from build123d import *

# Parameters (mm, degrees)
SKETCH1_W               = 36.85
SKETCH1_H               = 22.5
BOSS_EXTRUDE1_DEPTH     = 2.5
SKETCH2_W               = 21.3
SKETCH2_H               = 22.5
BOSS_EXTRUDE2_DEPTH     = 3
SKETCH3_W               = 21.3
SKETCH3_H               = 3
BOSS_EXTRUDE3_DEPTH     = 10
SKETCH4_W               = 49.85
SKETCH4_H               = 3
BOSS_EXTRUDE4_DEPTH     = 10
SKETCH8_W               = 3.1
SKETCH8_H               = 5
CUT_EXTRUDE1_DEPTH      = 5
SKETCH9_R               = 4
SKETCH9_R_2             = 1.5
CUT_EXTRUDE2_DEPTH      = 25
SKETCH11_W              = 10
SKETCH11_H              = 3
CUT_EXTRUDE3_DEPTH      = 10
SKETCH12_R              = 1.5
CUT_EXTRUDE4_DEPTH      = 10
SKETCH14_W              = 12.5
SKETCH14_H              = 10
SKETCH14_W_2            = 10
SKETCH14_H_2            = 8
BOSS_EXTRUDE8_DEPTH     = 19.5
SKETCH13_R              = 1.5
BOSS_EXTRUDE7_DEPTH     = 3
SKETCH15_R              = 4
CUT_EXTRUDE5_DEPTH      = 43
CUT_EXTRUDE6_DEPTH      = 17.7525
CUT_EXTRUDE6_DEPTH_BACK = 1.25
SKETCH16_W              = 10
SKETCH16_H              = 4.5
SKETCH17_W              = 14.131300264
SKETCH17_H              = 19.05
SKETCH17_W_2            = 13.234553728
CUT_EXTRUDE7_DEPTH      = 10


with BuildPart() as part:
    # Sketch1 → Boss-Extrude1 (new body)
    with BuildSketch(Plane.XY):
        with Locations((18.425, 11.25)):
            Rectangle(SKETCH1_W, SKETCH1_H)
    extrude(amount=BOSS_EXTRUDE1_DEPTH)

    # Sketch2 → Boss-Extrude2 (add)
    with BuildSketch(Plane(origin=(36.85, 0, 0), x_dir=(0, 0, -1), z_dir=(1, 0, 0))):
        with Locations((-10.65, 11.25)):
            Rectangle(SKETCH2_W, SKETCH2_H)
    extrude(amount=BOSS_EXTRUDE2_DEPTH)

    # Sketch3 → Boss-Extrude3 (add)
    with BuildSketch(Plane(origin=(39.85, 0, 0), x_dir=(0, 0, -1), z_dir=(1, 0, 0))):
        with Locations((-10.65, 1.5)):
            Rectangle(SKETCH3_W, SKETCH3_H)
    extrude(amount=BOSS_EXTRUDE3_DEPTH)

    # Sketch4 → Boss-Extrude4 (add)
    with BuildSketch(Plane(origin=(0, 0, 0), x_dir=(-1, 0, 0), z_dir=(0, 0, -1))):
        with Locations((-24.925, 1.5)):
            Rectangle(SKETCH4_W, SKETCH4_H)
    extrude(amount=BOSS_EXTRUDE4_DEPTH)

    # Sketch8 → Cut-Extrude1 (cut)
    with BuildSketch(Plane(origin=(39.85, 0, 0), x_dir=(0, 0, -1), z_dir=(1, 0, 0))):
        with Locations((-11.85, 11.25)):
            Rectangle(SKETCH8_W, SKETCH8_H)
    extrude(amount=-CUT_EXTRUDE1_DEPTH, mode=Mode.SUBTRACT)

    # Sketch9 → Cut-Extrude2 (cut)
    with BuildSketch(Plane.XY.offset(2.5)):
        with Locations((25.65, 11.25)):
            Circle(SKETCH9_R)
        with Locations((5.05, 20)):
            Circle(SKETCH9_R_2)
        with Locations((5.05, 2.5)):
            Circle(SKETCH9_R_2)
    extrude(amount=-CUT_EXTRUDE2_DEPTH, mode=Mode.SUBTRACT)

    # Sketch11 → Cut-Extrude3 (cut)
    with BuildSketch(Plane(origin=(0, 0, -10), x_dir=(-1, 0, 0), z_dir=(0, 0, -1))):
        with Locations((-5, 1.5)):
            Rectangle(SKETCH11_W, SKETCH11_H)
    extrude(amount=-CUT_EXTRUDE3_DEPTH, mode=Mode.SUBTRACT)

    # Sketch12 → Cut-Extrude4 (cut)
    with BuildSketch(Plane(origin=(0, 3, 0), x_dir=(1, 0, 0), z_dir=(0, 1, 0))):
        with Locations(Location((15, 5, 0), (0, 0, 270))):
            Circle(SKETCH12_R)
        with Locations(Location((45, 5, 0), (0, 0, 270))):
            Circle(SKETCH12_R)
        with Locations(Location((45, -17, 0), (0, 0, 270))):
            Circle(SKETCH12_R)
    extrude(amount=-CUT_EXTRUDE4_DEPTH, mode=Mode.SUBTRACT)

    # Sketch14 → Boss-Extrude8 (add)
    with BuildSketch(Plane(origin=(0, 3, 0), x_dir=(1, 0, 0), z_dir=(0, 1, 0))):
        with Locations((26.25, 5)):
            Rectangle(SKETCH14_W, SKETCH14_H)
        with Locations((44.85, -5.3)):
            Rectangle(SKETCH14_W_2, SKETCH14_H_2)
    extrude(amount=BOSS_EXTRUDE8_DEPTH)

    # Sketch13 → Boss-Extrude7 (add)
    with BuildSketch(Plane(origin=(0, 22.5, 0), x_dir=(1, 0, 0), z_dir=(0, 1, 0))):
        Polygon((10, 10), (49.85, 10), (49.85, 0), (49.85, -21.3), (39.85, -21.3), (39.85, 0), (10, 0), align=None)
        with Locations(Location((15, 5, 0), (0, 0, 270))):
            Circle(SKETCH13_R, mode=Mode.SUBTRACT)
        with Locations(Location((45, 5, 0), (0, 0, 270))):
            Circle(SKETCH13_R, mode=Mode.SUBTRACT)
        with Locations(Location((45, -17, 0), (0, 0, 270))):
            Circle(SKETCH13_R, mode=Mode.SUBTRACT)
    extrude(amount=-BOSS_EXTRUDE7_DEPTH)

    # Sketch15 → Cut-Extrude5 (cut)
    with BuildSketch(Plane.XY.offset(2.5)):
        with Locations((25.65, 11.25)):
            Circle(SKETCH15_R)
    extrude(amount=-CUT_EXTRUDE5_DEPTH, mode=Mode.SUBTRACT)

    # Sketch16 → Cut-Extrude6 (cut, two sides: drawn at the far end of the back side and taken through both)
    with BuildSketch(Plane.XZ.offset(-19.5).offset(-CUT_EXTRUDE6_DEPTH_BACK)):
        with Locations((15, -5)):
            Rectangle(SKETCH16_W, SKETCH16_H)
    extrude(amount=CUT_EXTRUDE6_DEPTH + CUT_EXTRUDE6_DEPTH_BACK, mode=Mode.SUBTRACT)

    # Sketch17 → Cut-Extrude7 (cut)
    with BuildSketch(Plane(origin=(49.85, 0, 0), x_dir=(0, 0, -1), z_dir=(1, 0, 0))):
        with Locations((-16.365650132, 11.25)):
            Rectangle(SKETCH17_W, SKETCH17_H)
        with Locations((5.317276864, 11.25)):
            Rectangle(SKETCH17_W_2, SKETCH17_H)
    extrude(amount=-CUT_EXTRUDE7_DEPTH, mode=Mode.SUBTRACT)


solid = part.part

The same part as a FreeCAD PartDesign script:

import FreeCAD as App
import Part
import Sketcher

V = App.Vector


def add_polygon(sketch, points):
    """Adds a closed chain of lines whose ends are joined by coincident constraints."""
    first, n = sketch.GeometryCount, len(points)
    for a, b in zip(points, points[1:] + points[:1]):
        sketch.addGeometry(Part.LineSegment(App.Vector(*a, 0), App.Vector(*b, 0)), False)
    for i in range(n):
        sketch.addConstraint(Sketcher.Constraint("Coincident", first + i, 2, first + (i + 1) % n, 1))

doc = App.newDocument("Part")
params = doc.addObject("Spreadsheet::Sheet", "Params")
for row, (alias, value) in enumerate([
    ("sketch1_height", "22.5 mm"),
    ("sketch1_width", "36.85 mm"),
    ("pad1_length", "2.5 mm"),
    ("sketch2_width", "22.5 mm"),
    ("sketch2_height", "21.3 mm"),
    ("pad2_length", "3 mm"),
    ("sketch3_width", "3 mm"),
    ("sketch3_height", "21.3 mm"),
    ("pad3_length", "10 mm"),
    ("sketch4_height", "3 mm"),
    ("sketch4_width", "49.85 mm"),
    ("pad4_length", "10 mm"),
    ("sketch5_width", "5 mm"),
    ("sketch5_height", "3.1 mm"),
    ("pocket1_length", "5 mm"),
    ("sketch6_diameter", "8 mm"),
    ("sketch6_diameter2", "3 mm"),
    ("pocket2_length", "25 mm"),
    ("sketch7_width", "10 mm"),
    ("sketch7_height", "3 mm"),
    ("pocket3_length", "10 mm"),
    ("sketch8_diameter", "3 mm"),
    ("pocket4_length", "10 mm"),
    ("sketch9_width", "10 mm"),
    ("sketch9_height", "8 mm"),
    ("sketch9_width2", "12.5 mm"),
    ("pad5_length", "19.5 mm"),
    ("sketch10_diameter", "3 mm"),
    ("sketch10_width", "10 mm"),
    ("sketch10_height", "21.3 mm"),
    ("sketch10_width2", "39.85 mm"),
    ("pad6_length", "3 mm"),
    ("sketch11_diameter", "8 mm"),
    ("pocket5_length", "43 mm"),
    ("sketch12_width", "10 mm"),
    ("sketch12_height", "4.5 mm"),
    ("pocket6_length", "17.7525 mm"),
    ("pocket6_length2", "1.25 mm"),
    ("sketch13_width", "19.05 mm"),
    ("pocket7_length", "10 mm"),
], start=1):
    params.set(f"A{row}", alias)
    params.set(f"B{row}", "=" + value)
    params.setAlias(f"B{row}", alias)

body = doc.addObject("PartDesign::Body", "Body")

# Sketch on XY plane
sketch1 = body.newObject("Sketcher::SketchObject", "Sketch")
sketch1.AttachmentSupport = (doc.getObject("XY_Plane"), [""])
sketch1.MapMode = "FlatFace"
add_polygon(sketch1, [(0, 22.5), (0, 0), (36.85, 0), (36.85, 22.5)])  # lines 0-3
sketch1.addConstraint([
    Sketcher.Constraint("Vertical", 0),
    Sketcher.Constraint("Horizontal", 1),
    Sketcher.Constraint("Vertical", 2),
    Sketcher.Constraint("Horizontal", 3),
    Sketcher.Constraint("Coincident", 0, 2, -1, 1),
    Sketcher.Constraint("DistanceY", 0, 2, 0, 1, 22.5),
    Sketcher.Constraint("DistanceX", 1, 1, 1, 2, 36.85),
])
sketch1.setExpression("Constraints[9]", "Params.sketch1_height")
sketch1.setExpression("Constraints[10]", "Params.sketch1_width")
pad1 = body.newObject("PartDesign::Pad", "Pad")
pad1.Profile = sketch1
pad1.setExpression("Length", "Params.pad1_length")

# Sketch on YZ plane
sketch2 = body.newObject("Sketcher::SketchObject", "Sketch001")
sketch2.AttachmentSupport = (doc.getObject("YZ_Plane"), [""])
sketch2.MapMode = "FlatFace"
sketch2.AttachmentOffset = App.Placement(V(0, 0, 36.85), App.Rotation())
add_polygon(sketch2, [(22.5, 21.3), (0, 21.3), (0, 0), (22.5, 0)])  # lines 0-3
sketch2.addConstraint([
    Sketcher.Constraint("Horizontal", 0),
    Sketcher.Constraint("Vertical", 1),
    Sketcher.Constraint("Horizontal", 2),
    Sketcher.Constraint("Vertical", 3),
    Sketcher.Constraint("Coincident", 1, 2, -1, 1),
    Sketcher.Constraint("DistanceX", 0, 2, 0, 1, 22.5),
    Sketcher.Constraint("DistanceY", 1, 2, 1, 1, 21.3),
])
sketch2.setExpression("Constraints[9]", "Params.sketch2_width")
sketch2.setExpression("Constraints[10]", "Params.sketch2_height")
pad2 = body.newObject("PartDesign::Pad", "Pad001")
pad2.Profile = sketch2
pad2.setExpression("Length", "Params.pad2_length")

# Sketch on YZ plane
sketch3 = body.newObject("Sketcher::SketchObject", "Sketch002")
sketch3.AttachmentSupport = (doc.getObject("YZ_Plane"), [""])
sketch3.MapMode = "FlatFace"
sketch3.AttachmentOffset = App.Placement(V(0, 0, 39.85), App.Rotation())
add_polygon(sketch3, [(3, 21.3), (0, 21.3), (0, 0), (3, 0)])  # lines 0-3
sketch3.addConstraint([
    Sketcher.Constraint("Horizontal", 0),
    Sketcher.Constraint("Vertical", 1),
    Sketcher.Constraint("Horizontal", 2),
    Sketcher.Constraint("Vertical", 3),
    Sketcher.Constraint("Coincident", 1, 2, -1, 1),
    Sketcher.Constraint("DistanceX", 0, 2, 0, 1, 3.0),
    Sketcher.Constraint("DistanceY", 1, 2, 1, 1, 21.3),
])
sketch3.setExpression("Constraints[9]", "Params.sketch3_width")
sketch3.setExpression("Constraints[10]", "Params.sketch3_height")
pad3 = body.newObject("PartDesign::Pad", "Pad002")
pad3.Profile = sketch3
pad3.setExpression("Length", "Params.pad3_length")

# Sketch on XY plane
sketch4 = body.newObject("Sketcher::SketchObject", "Sketch003")
sketch4.AttachmentSupport = (doc.getObject("XY_Plane"), [""])
sketch4.MapMode = "FlatFace"
add_polygon(sketch4, [(49.85, 3), (49.85, 0), (0, 0), (0, 3)])  # lines 0-3
sketch4.addConstraint([
    Sketcher.Constraint("Vertical", 0),
    Sketcher.Constraint("Horizontal", 1),
    Sketcher.Constraint("Vertical", 2),
    Sketcher.Constraint("Horizontal", 3),
    Sketcher.Constraint("Coincident", 1, 2, -1, 1),
    Sketcher.Constraint("DistanceY", 0, 2, 0, 1, 3.0),
    Sketcher.Constraint("DistanceX", 1, 2, 1, 1, 49.85),
])
sketch4.setExpression("Constraints[9]", "Params.sketch4_height")
sketch4.setExpression("Constraints[10]", "Params.sketch4_width")
pad4 = body.newObject("PartDesign::Pad", "Pad003")
pad4.Profile = sketch4
pad4.setExpression("Length", "Params.pad4_length")
pad4.Reversed = True

# Sketch on YZ plane
sketch5 = body.newObject("Sketcher::SketchObject", "Sketch004")
sketch5.AttachmentSupport = (doc.getObject("YZ_Plane"), [""])
sketch5.MapMode = "FlatFace"
sketch5.AttachmentOffset = App.Placement(V(0, 0, 39.85), App.Rotation())
add_polygon(sketch5, [(13.75, 13.4), (8.75, 13.4), (8.75, 10.3), (13.75, 10.3)])  # lines 0-3
sketch5.addConstraint([
    Sketcher.Constraint("Horizontal", 0),
    Sketcher.Constraint("Vertical", 1),
    Sketcher.Constraint("Horizontal", 2),
    Sketcher.Constraint("Vertical", 3),
    Sketcher.Constraint("DistanceX", 0, 2, 0, 1, 5.0),
    Sketcher.Constraint("DistanceY", 1, 2, 1, 1, 3.1),
    Sketcher.Constraint("DistanceY", -1, 1, 0, 2, 13.4),
    Sketcher.Constraint("DistanceX", -1, 1, 0, 2, 8.75),
])
sketch5.setExpression("Constraints[8]", "Params.sketch5_width")
sketch5.setExpression("Constraints[9]", "Params.sketch5_height")
pocket1 = body.newObject("PartDesign::Pocket", "Pocket")
pocket1.Profile = sketch5
pocket1.setExpression("Length", "Params.pocket1_length")

# Sketch on XY plane
sketch6 = body.newObject("Sketcher::SketchObject", "Sketch005")
sketch6.AttachmentSupport = (doc.getObject("XY_Plane"), [""])
sketch6.MapMode = "FlatFace"
sketch6.AttachmentOffset = App.Placement(V(0, 0, 2.5), App.Rotation())
sketch6.addGeometry([
    Part.Circle(V(25.65, 11.25, 0), V(0, 0, 1), 4),
    Part.Circle(V(5.05, 20, 0), V(0, 0, 1), 1.5),
    Part.Circle(V(5.05, 2.5, 0), V(0, 0, 1), 1.5),
], False)
sketch6.addConstraint([
    Sketcher.Constraint("Equal", 1, 2),
    Sketcher.Constraint("Vertical", 1, 3, 2, 3),
    Sketcher.Constraint("Diameter", 0, 8.0),
    Sketcher.Constraint("Diameter", 1, 3.0),
    Sketcher.Constraint("DistanceY", -1, 1, 1, 3, 20.0),
    Sketcher.Constraint("DistanceY", -1, 1, 2, 3, 2.5),
    Sketcher.Constraint("DistanceX", 1, 3, 0, 3, 20.6),
    Sketcher.Constraint("DistanceX", -1, 1, 0, 3, 25.65),
    Sketcher.Constraint("DistanceY", -1, 1, 0, 3, 11.25),
])
sketch6.setExpression("Constraints[2]", "Params.sketch6_diameter")
sketch6.setExpression("Constraints[3]", "Params.sketch6_diameter2")
pocket2 = body.newObject("PartDesign::Pocket", "Pocket001")
pocket2.Profile = sketch6
pocket2.setExpression("Length", "Params.pocket2_length")

# Sketch on XY plane
sketch7 = body.newObject("Sketcher::SketchObject", "Sketch006")
sketch7.AttachmentSupport = (doc.getObject("XY_Plane"), [""])
sketch7.MapMode = "FlatFace"
sketch7.AttachmentOffset = App.Placement(V(0, 0, -10), App.Rotation())
add_polygon(sketch7, [(10, 3), (10, 0), (0, 0), (0, 3)])  # lines 0-3
sketch7.addConstraint([
    Sketcher.Constraint("Vertical", 0),
    Sketcher.Constraint("Horizontal", 1),
    Sketcher.Constraint("Vertical", 2),
    Sketcher.Constraint("Horizontal", 3),
    Sketcher.Constraint("Coincident", 1, 2, -1, 1),
    Sketcher.Constraint("DistanceX", 1, 2, 1, 1, 10.0),
    Sketcher.Constraint("DistanceY", 0, 2, 0, 1, 3.0),
])
sketch7.setExpression("Constraints[9]", "Params.sketch7_width")
sketch7.setExpression("Constraints[10]", "Params.sketch7_height")
pocket3 = body.newObject("PartDesign::Pocket", "Pocket002")
pocket3.Profile = sketch7
pocket3.setExpression("Length", "Params.pocket3_length")
pocket3.Reversed = True

# Sketch on XZ plane
sketch8 = body.newObject("Sketcher::SketchObject", "Sketch007")
sketch8.AttachmentSupport = (doc.getObject("XZ_Plane"), [""])
sketch8.MapMode = "FlatFace"
sketch8.AttachmentOffset = App.Placement(V(0, 0, -3), App.Rotation())
sketch8.addGeometry([
    Part.Circle(V(15, -5, 0), V(0, 0, 1), 1.5),
    Part.Circle(V(45, -5, 0), V(0, 0, 1), 1.5),
    Part.Circle(V(45, 17, 0), V(0, 0, 1), 1.5),
], False)
sketch8.addConstraint([
    Sketcher.Constraint("Equal", 0, 1),
    Sketcher.Constraint("Equal", 1, 2),
    Sketcher.Constraint("Horizontal", 0, 3, 1, 3),
    Sketcher.Constraint("Vertical", 1, 3, 2, 3),
    Sketcher.Constraint("Diameter", 0, 3.0),
    Sketcher.Constraint("DistanceX", -1, 1, 0, 3, 15.0),
    Sketcher.Constraint("DistanceY", 0, 3, -1, 1, 5.0),
    Sketcher.Constraint("DistanceX", -1, 1, 1, 3, 45.0),
    Sketcher.Constraint("DistanceY", -1, 1, 2, 3, 17.0),
])
sketch8.setExpression("Constraints[4]", "Params.sketch8_diameter")
pocket4 = body.newObject("PartDesign::Pocket", "Pocket003")
pocket4.Profile = sketch8
pocket4.setExpression("Length", "Params.pocket4_length")
pocket4.Reversed = True

# Sketch on XZ plane
sketch9 = body.newObject("Sketcher::SketchObject", "Sketch008")
sketch9.AttachmentSupport = (doc.getObject("XZ_Plane"), [""])
sketch9.MapMode = "FlatFace"
sketch9.AttachmentOffset = App.Placement(V(0, 0, -3), App.Rotation())
add_polygon(sketch9, [(20, -10), (20, 0), (32.5, 0), (32.5, -10)])  # lines 0-3
add_polygon(sketch9, [(39.85, 1.3), (39.85, 9.3), (49.85, 9.3), (49.85, 1.3)])  # lines 4-7
sketch9.addConstraint([
    Sketcher.Constraint("Vertical", 0),
    Sketcher.Constraint("Horizontal", 1),
    Sketcher.Constraint("Vertical", 2),
    Sketcher.Constraint("Horizontal", 3),
    Sketcher.Constraint("Vertical", 4),
    Sketcher.Constraint("Horizontal", 5),
    Sketcher.Constraint("Vertical", 6),
    Sketcher.Constraint("Horizontal", 7),
    Sketcher.Constraint("PointOnObject", 0, 2, -1),
    Sketcher.Constraint("Equal", 7, 0),
    Sketcher.Constraint("DistanceX", 5, 1, 5, 2, 10.0),
    Sketcher.Constraint("DistanceY", 4, 1, 4, 2, 8.0),
    Sketcher.Constraint("DistanceX", 1, 1, 1, 2, 12.5),
    Sketcher.Constraint("DistanceX", -1, 1, 0, 2, 20.0),
    Sketcher.Constraint("DistanceY", -1, 1, 4, 2, 9.3),
    Sketcher.Constraint("DistanceX", -1, 1, 4, 2, 39.85),
])
sketch9.setExpression("Constraints[18]", "Params.sketch9_width")
sketch9.setExpression("Constraints[19]", "Params.sketch9_height")
sketch9.setExpression("Constraints[20]", "Params.sketch9_width2")
pad5 = body.newObject("PartDesign::Pad", "Pad004")
pad5.Profile = sketch9
pad5.setExpression("Length", "Params.pad5_length")
pad5.Reversed = True

# Sketch on XZ plane
sketch10 = body.newObject("Sketcher::SketchObject", "Sketch009")
sketch10.AttachmentSupport = (doc.getObject("XZ_Plane"), [""])
sketch10.MapMode = "FlatFace"
sketch10.AttachmentOffset = App.Placement(V(0, 0, -22.5), App.Rotation())
add_polygon(sketch10, [(49.85, -10), (10, -10), (10, 0), (39.85, 0), (39.85, 21.3), (49.85, 21.3)])  # lines 0-5
sketch10.addGeometry(Part.Circle(V(45, 17, 0), V(0, 0, 1), 1.5), False)  # 6
sketch10.addGeometry(Part.Circle(V(45, -5, 0), V(0, 0, 1), 1.5), False)  # 7
sketch10.addGeometry(Part.Circle(V(15, -5, 0), V(0, 0, 1), 1.5), False)  # 8
sketch10.addConstraint([
    Sketcher.Constraint("Horizontal", 0),
    Sketcher.Constraint("Vertical", 1),
    Sketcher.Constraint("Horizontal", 2),
    Sketcher.Constraint("Vertical", 3),
    Sketcher.Constraint("Horizontal", 4),
    Sketcher.Constraint("Vertical", 5),
    Sketcher.Constraint("Equal", 6, 7),
    Sketcher.Constraint("Equal", 7, 8),
    Sketcher.Constraint("PointOnObject", 1, 2, -1),
    Sketcher.Constraint("Horizontal", 7, 3, 8, 3),
    Sketcher.Constraint("Vertical", 6, 3, 7, 3),
    Sketcher.Constraint("Equal", 4, 1),
    Sketcher.Constraint("Diameter", 6, 3.0),
    Sketcher.Constraint("DistanceX", 4, 1, 4, 2, 10.0),
    Sketcher.Constraint("DistanceY", 3, 1, 3, 2, 21.3),
    Sketcher.Constraint("DistanceX", -1, 1, 6, 3, 45.0),
    Sketcher.Constraint("DistanceY", -1, 1, 6, 3, 17.0),
    Sketcher.Constraint("DistanceY", 7, 3, -1, 1, 5.0),
    Sketcher.Constraint("DistanceX", -1, 1, 8, 3, 15.0),
    Sketcher.Constraint("DistanceX", -1, 1, 0, 2, 10.0),
    Sketcher.Constraint("DistanceX", 0, 2, 0, 1, 39.85),
])
sketch10.setExpression("Constraints[18]", "Params.sketch10_diameter")
sketch10.setExpression("Constraints[19]", "Params.sketch10_width")
sketch10.setExpression("Constraints[20]", "Params.sketch10_height")
sketch10.setExpression("Constraints[26]", "Params.sketch10_width2")
pad6 = body.newObject("PartDesign::Pad", "Pad005")
pad6.Profile = sketch10
pad6.setExpression("Length", "Params.pad6_length")

# Sketch on XY plane
sketch11 = body.newObject("Sketcher::SketchObject", "Sketch010")
sketch11.AttachmentSupport = (doc.getObject("XY_Plane"), [""])
sketch11.MapMode = "FlatFace"
sketch11.AttachmentOffset = App.Placement(V(0, 0, 2.5), App.Rotation())
sketch11.addGeometry(Part.Circle(V(25.65, 11.25, 0), V(0, 0, 1), 4), False)
sketch11.addConstraint([
    Sketcher.Constraint("Diameter", 0, 8.0),
    Sketcher.Constraint("DistanceX", -1, 1, 0, 3, 25.65),
    Sketcher.Constraint("DistanceY", -1, 1, 0, 3, 11.25),
])
sketch11.setExpression("Constraints[0]", "Params.sketch11_diameter")
pocket5 = body.newObject("PartDesign::Pocket", "Pocket004")
pocket5.Profile = sketch11
pocket5.setExpression("Length", "Params.pocket5_length")

# Sketch on XZ plane
sketch12 = body.newObject("Sketcher::SketchObject", "Sketch011")
sketch12.AttachmentSupport = (doc.getObject("XZ_Plane"), [""])
sketch12.MapMode = "FlatFace"
sketch12.AttachmentOffset = App.Placement(V(0, 0, -19.5), App.Rotation())
add_polygon(sketch12, [(10, -2.75), (10, -7.25), (20, -7.25), (20, -2.75)])  # lines 0-3
sketch12.addConstraint([
    Sketcher.Constraint("Vertical", 0),
    Sketcher.Constraint("Horizontal", 1),
    Sketcher.Constraint("Vertical", 2),
    Sketcher.Constraint("Horizontal", 3),
    Sketcher.Constraint("DistanceX", 1, 1, 1, 2, 10.0),
    Sketcher.Constraint("DistanceY", 0, 2, 0, 1, 4.5),
    Sketcher.Constraint("DistanceX", -1, 1, 0, 2, 10.0),
    Sketcher.Constraint("DistanceY", 0, 2, -1, 1, 7.25),
])
sketch12.setExpression("Constraints[8]", "Params.sketch12_width")
sketch12.setExpression("Constraints[9]", "Params.sketch12_height")
pocket6 = body.newObject("PartDesign::Pocket", "Pocket005")
pocket6.Profile = sketch12
pocket6.Type = "TwoLengths"
pocket6.setExpression("Length", "Params.pocket6_length")
pocket6.setExpression("Length2", "Params.pocket6_length2")
pocket6.Reversed = True

# Sketch on YZ plane
sketch13 = body.newObject("Sketcher::SketchObject", "Sketch012")
sketch13.AttachmentSupport = (doc.getObject("YZ_Plane"), [""])
sketch13.MapMode = "FlatFace"
sketch13.AttachmentOffset = App.Placement(V(0, 0, 49.85), App.Rotation())
add_polygon(sketch13, [(20.775, 23.4313), (1.725, 23.4313), (1.725, 9.3), (20.775, 9.3)])  # lines 0-3
add_polygon(sketch13, [(20.775, 1.3), (1.725, 1.3), (1.725, -11.934554), (20.775, -11.934554)])  # lines 4-7
sketch13.addConstraint([
    Sketcher.Constraint("Horizontal", 0),
    Sketcher.Constraint("Vertical", 1),
    Sketcher.Constraint("Horizontal", 2),
    Sketcher.Constraint("Vertical", 3),
    Sketcher.Constraint("Horizontal", 4),
    Sketcher.Constraint("Vertical", 5),
    Sketcher.Constraint("Horizontal", 6),
    Sketcher.Constraint("Vertical", 7),
    Sketcher.Constraint("Vertical", 1, 2, 4, 2),
    Sketcher.Constraint("Vertical", 3, 2, 6, 2),
    Sketcher.Constraint("DistanceY", 4, 2, 1, 2, 8.0),
    Sketcher.Constraint("DistanceX", 0, 2, 0, 1, 19.05),
    Sketcher.Constraint("DistanceY", -1, 1, 1, 2, 9.3),
    Sketcher.Constraint("DistanceY", 1, 2, 1, 1, 14.1313),
    Sketcher.Constraint("DistanceX", -1, 1, 0, 2, 1.725),
    Sketcher.Constraint("DistanceY", 5, 2, 5, 1, 13.234554),
])
sketch13.setExpression("Constraints[19]", "Params.sketch13_width")
pocket7 = body.newObject("PartDesign::Pocket", "Pocket006")
pocket7.Profile = sketch13
pocket7.setExpression("Length", "Params.pocket7_length")

doc.recompute()
